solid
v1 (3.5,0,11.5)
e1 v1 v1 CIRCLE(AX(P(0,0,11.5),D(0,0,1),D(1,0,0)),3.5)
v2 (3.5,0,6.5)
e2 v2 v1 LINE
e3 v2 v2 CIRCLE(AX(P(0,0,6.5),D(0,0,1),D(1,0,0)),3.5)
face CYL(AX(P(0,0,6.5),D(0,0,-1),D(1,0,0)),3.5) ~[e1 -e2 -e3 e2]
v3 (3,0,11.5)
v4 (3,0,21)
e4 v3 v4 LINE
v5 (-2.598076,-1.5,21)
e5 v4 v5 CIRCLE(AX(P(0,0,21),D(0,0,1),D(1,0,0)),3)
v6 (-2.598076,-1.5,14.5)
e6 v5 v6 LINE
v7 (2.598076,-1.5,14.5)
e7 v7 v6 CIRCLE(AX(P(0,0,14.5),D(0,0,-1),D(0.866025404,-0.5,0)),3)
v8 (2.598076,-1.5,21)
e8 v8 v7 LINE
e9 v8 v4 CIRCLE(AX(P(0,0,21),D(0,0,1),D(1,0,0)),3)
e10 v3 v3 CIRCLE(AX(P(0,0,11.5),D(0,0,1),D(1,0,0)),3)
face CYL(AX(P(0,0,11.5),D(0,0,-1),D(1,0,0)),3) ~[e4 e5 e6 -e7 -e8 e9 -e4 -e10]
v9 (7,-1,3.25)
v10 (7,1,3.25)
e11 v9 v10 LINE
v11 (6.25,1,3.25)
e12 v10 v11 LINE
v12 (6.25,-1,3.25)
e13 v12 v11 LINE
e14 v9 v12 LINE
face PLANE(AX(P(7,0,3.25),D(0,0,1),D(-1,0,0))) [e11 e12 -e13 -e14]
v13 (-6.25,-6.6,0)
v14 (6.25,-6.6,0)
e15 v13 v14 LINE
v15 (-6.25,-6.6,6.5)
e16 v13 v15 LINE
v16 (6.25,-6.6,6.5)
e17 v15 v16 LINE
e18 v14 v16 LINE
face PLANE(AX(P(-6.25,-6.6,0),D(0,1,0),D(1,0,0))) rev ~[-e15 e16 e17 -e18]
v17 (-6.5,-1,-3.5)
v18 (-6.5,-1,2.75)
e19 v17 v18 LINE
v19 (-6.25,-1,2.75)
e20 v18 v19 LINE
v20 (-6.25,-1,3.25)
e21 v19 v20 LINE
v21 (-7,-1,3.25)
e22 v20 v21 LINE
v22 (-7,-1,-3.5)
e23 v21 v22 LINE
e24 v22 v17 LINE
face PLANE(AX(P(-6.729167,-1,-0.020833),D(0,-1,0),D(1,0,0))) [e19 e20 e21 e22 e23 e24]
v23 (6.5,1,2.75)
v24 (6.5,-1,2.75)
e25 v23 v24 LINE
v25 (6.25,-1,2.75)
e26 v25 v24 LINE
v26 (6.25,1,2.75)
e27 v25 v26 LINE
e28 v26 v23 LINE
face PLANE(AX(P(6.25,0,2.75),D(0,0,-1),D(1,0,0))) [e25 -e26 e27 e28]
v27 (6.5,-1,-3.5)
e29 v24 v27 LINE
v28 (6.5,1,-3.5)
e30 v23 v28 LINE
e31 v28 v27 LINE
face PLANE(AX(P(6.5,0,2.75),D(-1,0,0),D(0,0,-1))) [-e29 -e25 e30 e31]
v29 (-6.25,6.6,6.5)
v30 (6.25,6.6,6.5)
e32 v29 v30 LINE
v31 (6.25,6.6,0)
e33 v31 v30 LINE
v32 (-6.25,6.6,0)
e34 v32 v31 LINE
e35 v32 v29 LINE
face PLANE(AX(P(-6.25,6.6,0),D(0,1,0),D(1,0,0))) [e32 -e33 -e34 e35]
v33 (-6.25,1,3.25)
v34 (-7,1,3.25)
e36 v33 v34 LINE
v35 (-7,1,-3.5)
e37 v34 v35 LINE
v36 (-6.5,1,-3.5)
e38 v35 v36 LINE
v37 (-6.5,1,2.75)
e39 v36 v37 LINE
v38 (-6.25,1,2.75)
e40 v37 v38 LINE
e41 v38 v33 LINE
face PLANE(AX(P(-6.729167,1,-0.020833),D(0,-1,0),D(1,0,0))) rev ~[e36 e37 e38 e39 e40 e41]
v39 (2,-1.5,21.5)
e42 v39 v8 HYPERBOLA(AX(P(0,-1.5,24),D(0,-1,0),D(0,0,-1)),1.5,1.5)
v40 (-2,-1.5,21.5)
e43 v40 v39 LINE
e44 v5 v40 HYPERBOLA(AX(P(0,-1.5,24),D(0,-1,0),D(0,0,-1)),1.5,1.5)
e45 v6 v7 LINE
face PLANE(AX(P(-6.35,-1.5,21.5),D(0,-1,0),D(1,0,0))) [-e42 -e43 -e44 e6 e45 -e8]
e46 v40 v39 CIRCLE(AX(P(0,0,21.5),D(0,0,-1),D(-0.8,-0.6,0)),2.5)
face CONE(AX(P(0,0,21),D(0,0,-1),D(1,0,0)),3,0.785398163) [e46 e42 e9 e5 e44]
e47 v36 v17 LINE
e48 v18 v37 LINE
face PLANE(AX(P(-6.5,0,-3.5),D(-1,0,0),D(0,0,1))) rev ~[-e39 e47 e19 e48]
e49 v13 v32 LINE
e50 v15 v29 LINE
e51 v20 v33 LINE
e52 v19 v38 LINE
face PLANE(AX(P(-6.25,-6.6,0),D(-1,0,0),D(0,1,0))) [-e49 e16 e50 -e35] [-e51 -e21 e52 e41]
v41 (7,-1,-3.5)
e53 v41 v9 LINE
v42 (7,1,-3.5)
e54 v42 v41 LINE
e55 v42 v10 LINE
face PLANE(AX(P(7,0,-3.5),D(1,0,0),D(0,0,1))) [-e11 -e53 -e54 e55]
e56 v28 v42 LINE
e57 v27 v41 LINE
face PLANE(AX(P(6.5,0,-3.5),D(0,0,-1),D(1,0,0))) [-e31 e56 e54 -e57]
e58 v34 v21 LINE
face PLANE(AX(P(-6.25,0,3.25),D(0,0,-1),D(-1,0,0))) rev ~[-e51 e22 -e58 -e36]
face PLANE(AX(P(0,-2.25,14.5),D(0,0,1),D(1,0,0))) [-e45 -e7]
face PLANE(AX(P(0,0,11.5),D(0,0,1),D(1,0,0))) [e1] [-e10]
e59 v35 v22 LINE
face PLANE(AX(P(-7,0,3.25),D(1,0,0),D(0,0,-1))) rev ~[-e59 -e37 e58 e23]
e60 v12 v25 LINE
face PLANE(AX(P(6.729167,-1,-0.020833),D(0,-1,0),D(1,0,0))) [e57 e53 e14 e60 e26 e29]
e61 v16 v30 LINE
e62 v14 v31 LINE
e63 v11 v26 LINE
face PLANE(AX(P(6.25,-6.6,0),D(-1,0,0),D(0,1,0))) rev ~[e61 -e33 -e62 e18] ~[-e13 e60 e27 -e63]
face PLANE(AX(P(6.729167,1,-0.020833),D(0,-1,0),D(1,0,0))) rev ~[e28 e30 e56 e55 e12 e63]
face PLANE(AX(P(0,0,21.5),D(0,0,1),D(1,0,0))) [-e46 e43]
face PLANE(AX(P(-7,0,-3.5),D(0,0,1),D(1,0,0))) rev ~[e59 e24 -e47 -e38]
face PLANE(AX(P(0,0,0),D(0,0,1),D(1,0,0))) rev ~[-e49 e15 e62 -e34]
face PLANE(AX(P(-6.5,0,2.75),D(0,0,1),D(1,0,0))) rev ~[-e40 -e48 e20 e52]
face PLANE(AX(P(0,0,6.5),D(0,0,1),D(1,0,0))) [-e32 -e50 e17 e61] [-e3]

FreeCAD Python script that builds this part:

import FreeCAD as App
import Part
import Sketcher

V = App.Vector
Q = App.Units.Quantity


def edges_at(feature, points):
    """Names of the edges that pass closest to the given points."""
    edges = feature.Shape.Edges
    near = lambda p: min(range(len(edges)), key=lambda i: edges[i].distToShape(Part.Vertex(*p))[0])
    return sorted({f"Edge{near(p) + 1}" for p in points})

doc = App.newDocument("Part")
params = doc.addObject("Spreadsheet::Sheet", "Params")
for row, (alias, value) in enumerate([
    ("sketch1_width", "12.5 mm"),
    ("sketch1_height", "13.2 mm"),
    ("pad1_length", "6.5 mm"),
    ("sketch2_diameter", "7 mm"),
    ("pad2_length", "5 mm"),
    ("sketch3_diameter", "6 mm"),
    ("pad3_length", "10 mm"),
    ("chamfer_size", "0.5 mm"),
    ("sketch4_width", "12.7 mm"),
    ("sketch4_height", "1.5 mm"),
    ("pocket1_length", "7 mm"),
    ("sketch5_width", "0.5 mm"),
    ("sketch5_width2", "0.75 mm"),
    ("sketch5_height", "6.75 mm"),
    ("pad4_length", "2 mm"),
], start=1):
    params.set(f"A{row}", alias)
    params.set(f"B{row}", "=" + value)
    params.setAlias(f"B{row}", alias)

body = doc.addObject("PartDesign::Body", "Body")

# Sketch on XY plane
sketch1 = doc.addObject("Sketcher::SketchObject", "Sketch")
body.addObject(sketch1)
sketch1.AttachmentSupport = (doc.XY_Plane, [""])
sketch1.MapMode = "FlatFace"
sketch1.addGeometry(Part.LineSegment(V(-6.25, 6.6, 0), V(-6.25, -6.6, 0)), False)
sketch1.addGeometry(Part.LineSegment(V(-6.25, -6.6, 0), V(6.25, -6.6, 0)), False)
sketch1.addGeometry(Part.LineSegment(V(6.25, -6.6, 0), V(6.25, 6.6, 0)), False)
sketch1.addGeometry(Part.LineSegment(V(6.25, 6.6, 0), V(-6.25, 6.6, 0)), False)
sketch1.addConstraint(Sketcher.Constraint("Coincident", 0, 2, 1, 1))
sketch1.addConstraint(Sketcher.Constraint("Coincident", 1, 2, 2, 1))
sketch1.addConstraint(Sketcher.Constraint("Coincident", 2, 2, 3, 1))
sketch1.addConstraint(Sketcher.Constraint("Coincident", 3, 2, 0, 1))
sketch1.addConstraint(Sketcher.Constraint("Vertical", 0))
sketch1.addConstraint(Sketcher.Constraint("Horizontal", 1))
sketch1.addConstraint(Sketcher.Constraint("Vertical", 2))
sketch1.addConstraint(Sketcher.Constraint("Horizontal", 3))
sketch1.addConstraint(Sketcher.Constraint("Symmetric", 0, 2, 2, 2, -1, 1))
sketch1.addConstraint(Sketcher.Constraint("DistanceX", 1, 1, 1, 2, Q("12.5 mm")))
sketch1.addConstraint(Sketcher.Constraint("DistanceY", 0, 2, 0, 1, Q("13.2 mm")))
sketch1.setExpression("Constraints[9]", "Params.sketch1_width")
sketch1.setExpression("Constraints[10]", "Params.sketch1_height")
pad1 = doc.addObject("PartDesign::Pad", "Pad")
body.addObject(pad1)
pad1.Profile = sketch1
pad1.setExpression("Length", "Params.pad1_length")

# Sketch on XY plane
sketch2 = doc.addObject("Sketcher::SketchObject", "Sketch001")
body.addObject(sketch2)
sketch2.AttachmentSupport = (doc.XY_Plane, [""])
sketch2.MapMode = "FlatFace"
sketch2.AttachmentOffset = App.Placement(V(0, 0, 6.5), App.Rotation())
sketch2.addGeometry(Part.Circle(V(0, 0, 0), V(0, 0, 1), 3.5), False)
sketch2.addConstraint(Sketcher.Constraint("Coincident", 0, 3, -1, 1))
sketch2.addConstraint(Sketcher.Constraint("Diameter", 0, Q("7 mm")))
sketch2.setExpression("Constraints[1]", "Params.sketch2_diameter")
pad2 = doc.addObject("PartDesign::Pad", "Pad001")
body.addObject(pad2)
pad2.Profile = sketch2
pad2.setExpression("Length", "Params.pad2_length")

# Sketch on XY plane
sketch3 = doc.addObject("Sketcher::SketchObject", "Sketch002")
body.addObject(sketch3)
sketch3.AttachmentSupport = (doc.XY_Plane, [""])
sketch3.MapMode = "FlatFace"
sketch3.AttachmentOffset = App.Placement(V(0, 0, 11.5), App.Rotation())
sketch3.addGeometry(Part.Circle(V(0, 0, 0), V(0, 0, 1), 3), False)
sketch3.addConstraint(Sketcher.Constraint("Coincident", 0, 3, -1, 1))
sketch3.addConstraint(Sketcher.Constraint("Diameter", 0, Q("6 mm")))
sketch3.setExpression("Constraints[1]", "Params.sketch3_diameter")
pad3 = doc.addObject("PartDesign::Pad", "Pad002")
body.addObject(pad3)
pad3.Profile = sketch3
pad3.setExpression("Length", "Params.pad3_length")
doc.recompute()

chamfer = doc.addObject("PartDesign::Chamfer", "Chamfer")
body.addObject(chamfer)
chamfer.Base = (pad3, edges_at(pad3, [(-3, 0, 21.5)]))
chamfer.setExpression("Size", "Params.chamfer_size")

# Sketch on XY plane
sketch4 = doc.addObject("Sketcher::SketchObject", "Sketch003")
body.addObject(sketch4)
sketch4.AttachmentSupport = (doc.XY_Plane, [""])
sketch4.MapMode = "FlatFace"
sketch4.AttachmentOffset = App.Placement(V(0, 0, 21.5), App.Rotation())
sketch4.addGeometry(Part.LineSegment(V(-6.35, -1.5, 0), V(-6.35, -3, 0)), False)
sketch4.addGeometry(Part.LineSegment(V(-6.35, -3, 0), V(6.35, -3, 0)), False)
sketch4.addGeometry(Part.LineSegment(V(6.35, -3, 0), V(6.35, -1.5, 0)), False)
sketch4.addGeometry(Part.LineSegment(V(6.35, -1.5, 0), V(-6.35, -1.5, 0)), False)
sketch4.addConstraint(Sketcher.Constraint("Coincident", 0, 2, 1, 1))
sketch4.addConstraint(Sketcher.Constraint("Coincident", 1, 2, 2, 1))
sketch4.addConstraint(Sketcher.Constraint("Coincident", 2, 2, 3, 1))
sketch4.addConstraint(Sketcher.Constraint("Coincident", 3, 2, 0, 1))
sketch4.addConstraint(Sketcher.Constraint("Vertical", 0))
sketch4.addConstraint(Sketcher.Constraint("Horizontal", 1))
sketch4.addConstraint(Sketcher.Constraint("Vertical", 2))
sketch4.addConstraint(Sketcher.Constraint("Horizontal", 3))
sketch4.addConstraint(Sketcher.Constraint("DistanceX", 1, 1, 1, 2, Q("12.7 mm")))
sketch4.addConstraint(Sketcher.Constraint("DistanceY", 0, 2, 0, 1, Q("1.5 mm")))
sketch4.addConstraint(Sketcher.Constraint("DistanceY", 0, 2, -1, 1, Q("3 mm")))
sketch4.addConstraint(Sketcher.Constraint("DistanceX", 0, 2, -1, 1, Q("6.35 mm")))
sketch4.setExpression("Constraints[8]", "Params.sketch4_width")
sketch4.setExpression("Constraints[9]", "Params.sketch4_height")
pocket1 = doc.addObject("PartDesign::Pocket", "Pocket")
body.addObject(pocket1)
pocket1.Profile = sketch4
pocket1.setExpression("Length", "Params.pocket1_length")

# Sketch on XZ plane
sketch5 = doc.addObject("Sketcher::SketchObject", "Sketch004")
body.addObject(sketch5)
sketch5.AttachmentSupport = (doc.XZ_Plane, [""])
sketch5.MapMode = "FlatFace"
sketch5.addGeometry(Part.LineSegment(V(-6.25, 3.25, 0), V(-7, 3.25, 0)), False)
sketch5.addGeometry(Part.LineSegment(V(-7, 3.25, 0), V(-7, -3.5, 0)), False)
sketch5.addGeometry(Part.LineSegment(V(-7, -3.5, 0), V(-6.5, -3.5, 0)), False)
sketch5.addGeometry(Part.LineSegment(V(-6.5, -3.5, 0), V(-6.5, 2.75, 0)), False)
sketch5.addGeometry(Part.LineSegment(V(-6.5, 2.75, 0), V(-6.25, 2.75, 0)), False)
sketch5.addGeometry(Part.LineSegment(V(-6.25, 2.75, 0), V(-6.25, 3.25, 0)), False)
sketch5.addGeometry(Part.LineSegment(V(6.25, 2.75, 0), V(6.5, 2.75, 0)), False)
sketch5.addGeometry(Part.LineSegment(V(6.5, 2.75, 0), V(6.5, -3.5, 0)), False)
sketch5.addGeometry(Part.LineSegment(V(6.5, -3.5, 0), V(7, -3.5, 0)), False)
sketch5.addGeometry(Part.LineSegment(V(7, -3.5, 0), V(7, 3.25, 0)), False)
sketch5.addGeometry(Part.LineSegment(V(7, 3.25, 0), V(6.25, 3.25, 0)), False)
sketch5.addGeometry(Part.LineSegment(V(6.25, 3.25, 0), V(6.25, 2.75, 0)), False)
sketch5.addConstraint(Sketcher.Constraint("Coincident", 0, 2, 1, 1))
sketch5.addConstraint(Sketcher.Constraint("Coincident", 1, 2, 2, 1))
sketch5.addConstraint(Sketcher.Constraint("Coincident", 2, 2, 3, 1))
sketch5.addConstraint(Sketcher.Constraint("Coincident", 3, 2, 4, 1))
sketch5.addConstraint(Sketcher.Constraint("Coincident", 4, 2, 5, 1))
sketch5.addConstraint(Sketcher.Constraint("Coincident", 5, 2, 0, 1))
sketch5.addConstraint(Sketcher.Constraint("Coincident", 6, 2, 7, 1))
sketch5.addConstraint(Sketcher.Constraint("Coincident", 7, 2, 8, 1))
sketch5.addConstraint(Sketcher.Constraint("Coincident", 8, 2, 9, 1))
sketch5.addConstraint(Sketcher.Constraint("Coincident", 9, 2, 10, 1))
sketch5.addConstraint(Sketcher.Constraint("Coincident", 10, 2, 11, 1))
sketch5.addConstraint(Sketcher.Constraint("Coincident", 11, 2, 6, 1))
sketch5.addConstraint(Sketcher.Constraint("Horizontal", 0))
sketch5.addConstraint(Sketcher.Constraint("Vertical", 1))
sketch5.addConstraint(Sketcher.Constraint("Horizontal", 2))
sketch5.addConstraint(Sketcher.Constraint("Vertical", 3))
sketch5.addConstraint(Sketcher.Constraint("Horizontal", 4))
sketch5.addConstraint(Sketcher.Constraint("Vertical", 5))
sketch5.addConstraint(Sketcher.Constraint("Horizontal", 6))
sketch5.addConstraint(Sketcher.Constraint("Vertical", 7))
sketch5.addConstraint(Sketcher.Constraint("Horizontal", 8))
sketch5.addConstraint(Sketcher.Constraint("Vertical", 9))
sketch5.addConstraint(Sketcher.Constraint("Horizontal", 10))
sketch5.addConstraint(Sketcher.Constraint("Vertical", 11))
sketch5.addConstraint(Sketcher.Constraint("Symmetric", 3, 2, 6, 2, -2))
sketch5.addConstraint(Sketcher.Constraint("Symmetric", 1, 2, 8, 2, -2))
sketch5.addConstraint(Sketcher.Constraint("Symmetric", 5, 2, 10, 2, -2))
sketch5.addConstraint(Sketcher.Constraint("Equal", 8, 5))
sketch5.addConstraint(Sketcher.Constraint("DistanceX", 2, 1, 2, 2, Q("0.5 mm")))
sketch5.addConstraint(Sketcher.Constraint("DistanceX", 0, 2, -1, 1, Q("7 mm")))
sketch5.addConstraint(Sketcher.Constraint("DistanceX", 0, 2, 0, 1, Q("0.75 mm")))
sketch5.addConstraint(Sketcher.Constraint("DistanceY", 1, 2, 1, 1, Q("6.75 mm")))
sketch5.addConstraint(Sketcher.Constraint("DistanceY", 1, 2, -1, 1, Q("3.5 mm")))
sketch5.setExpression("Constraints[28]", "Params.sketch5_width")
sketch5.setExpression("Constraints[30]", "Params.sketch5_width2")
sketch5.setExpression("Constraints[31]", "Params.sketch5_height")
pad4 = doc.addObject("PartDesign::Pad", "Pad003")
body.addObject(pad4)
pad4.Profile = sketch5
pad4.setExpression("Length", "Params.pad4_length")
pad4.Midplane = True

doc.recompute()
